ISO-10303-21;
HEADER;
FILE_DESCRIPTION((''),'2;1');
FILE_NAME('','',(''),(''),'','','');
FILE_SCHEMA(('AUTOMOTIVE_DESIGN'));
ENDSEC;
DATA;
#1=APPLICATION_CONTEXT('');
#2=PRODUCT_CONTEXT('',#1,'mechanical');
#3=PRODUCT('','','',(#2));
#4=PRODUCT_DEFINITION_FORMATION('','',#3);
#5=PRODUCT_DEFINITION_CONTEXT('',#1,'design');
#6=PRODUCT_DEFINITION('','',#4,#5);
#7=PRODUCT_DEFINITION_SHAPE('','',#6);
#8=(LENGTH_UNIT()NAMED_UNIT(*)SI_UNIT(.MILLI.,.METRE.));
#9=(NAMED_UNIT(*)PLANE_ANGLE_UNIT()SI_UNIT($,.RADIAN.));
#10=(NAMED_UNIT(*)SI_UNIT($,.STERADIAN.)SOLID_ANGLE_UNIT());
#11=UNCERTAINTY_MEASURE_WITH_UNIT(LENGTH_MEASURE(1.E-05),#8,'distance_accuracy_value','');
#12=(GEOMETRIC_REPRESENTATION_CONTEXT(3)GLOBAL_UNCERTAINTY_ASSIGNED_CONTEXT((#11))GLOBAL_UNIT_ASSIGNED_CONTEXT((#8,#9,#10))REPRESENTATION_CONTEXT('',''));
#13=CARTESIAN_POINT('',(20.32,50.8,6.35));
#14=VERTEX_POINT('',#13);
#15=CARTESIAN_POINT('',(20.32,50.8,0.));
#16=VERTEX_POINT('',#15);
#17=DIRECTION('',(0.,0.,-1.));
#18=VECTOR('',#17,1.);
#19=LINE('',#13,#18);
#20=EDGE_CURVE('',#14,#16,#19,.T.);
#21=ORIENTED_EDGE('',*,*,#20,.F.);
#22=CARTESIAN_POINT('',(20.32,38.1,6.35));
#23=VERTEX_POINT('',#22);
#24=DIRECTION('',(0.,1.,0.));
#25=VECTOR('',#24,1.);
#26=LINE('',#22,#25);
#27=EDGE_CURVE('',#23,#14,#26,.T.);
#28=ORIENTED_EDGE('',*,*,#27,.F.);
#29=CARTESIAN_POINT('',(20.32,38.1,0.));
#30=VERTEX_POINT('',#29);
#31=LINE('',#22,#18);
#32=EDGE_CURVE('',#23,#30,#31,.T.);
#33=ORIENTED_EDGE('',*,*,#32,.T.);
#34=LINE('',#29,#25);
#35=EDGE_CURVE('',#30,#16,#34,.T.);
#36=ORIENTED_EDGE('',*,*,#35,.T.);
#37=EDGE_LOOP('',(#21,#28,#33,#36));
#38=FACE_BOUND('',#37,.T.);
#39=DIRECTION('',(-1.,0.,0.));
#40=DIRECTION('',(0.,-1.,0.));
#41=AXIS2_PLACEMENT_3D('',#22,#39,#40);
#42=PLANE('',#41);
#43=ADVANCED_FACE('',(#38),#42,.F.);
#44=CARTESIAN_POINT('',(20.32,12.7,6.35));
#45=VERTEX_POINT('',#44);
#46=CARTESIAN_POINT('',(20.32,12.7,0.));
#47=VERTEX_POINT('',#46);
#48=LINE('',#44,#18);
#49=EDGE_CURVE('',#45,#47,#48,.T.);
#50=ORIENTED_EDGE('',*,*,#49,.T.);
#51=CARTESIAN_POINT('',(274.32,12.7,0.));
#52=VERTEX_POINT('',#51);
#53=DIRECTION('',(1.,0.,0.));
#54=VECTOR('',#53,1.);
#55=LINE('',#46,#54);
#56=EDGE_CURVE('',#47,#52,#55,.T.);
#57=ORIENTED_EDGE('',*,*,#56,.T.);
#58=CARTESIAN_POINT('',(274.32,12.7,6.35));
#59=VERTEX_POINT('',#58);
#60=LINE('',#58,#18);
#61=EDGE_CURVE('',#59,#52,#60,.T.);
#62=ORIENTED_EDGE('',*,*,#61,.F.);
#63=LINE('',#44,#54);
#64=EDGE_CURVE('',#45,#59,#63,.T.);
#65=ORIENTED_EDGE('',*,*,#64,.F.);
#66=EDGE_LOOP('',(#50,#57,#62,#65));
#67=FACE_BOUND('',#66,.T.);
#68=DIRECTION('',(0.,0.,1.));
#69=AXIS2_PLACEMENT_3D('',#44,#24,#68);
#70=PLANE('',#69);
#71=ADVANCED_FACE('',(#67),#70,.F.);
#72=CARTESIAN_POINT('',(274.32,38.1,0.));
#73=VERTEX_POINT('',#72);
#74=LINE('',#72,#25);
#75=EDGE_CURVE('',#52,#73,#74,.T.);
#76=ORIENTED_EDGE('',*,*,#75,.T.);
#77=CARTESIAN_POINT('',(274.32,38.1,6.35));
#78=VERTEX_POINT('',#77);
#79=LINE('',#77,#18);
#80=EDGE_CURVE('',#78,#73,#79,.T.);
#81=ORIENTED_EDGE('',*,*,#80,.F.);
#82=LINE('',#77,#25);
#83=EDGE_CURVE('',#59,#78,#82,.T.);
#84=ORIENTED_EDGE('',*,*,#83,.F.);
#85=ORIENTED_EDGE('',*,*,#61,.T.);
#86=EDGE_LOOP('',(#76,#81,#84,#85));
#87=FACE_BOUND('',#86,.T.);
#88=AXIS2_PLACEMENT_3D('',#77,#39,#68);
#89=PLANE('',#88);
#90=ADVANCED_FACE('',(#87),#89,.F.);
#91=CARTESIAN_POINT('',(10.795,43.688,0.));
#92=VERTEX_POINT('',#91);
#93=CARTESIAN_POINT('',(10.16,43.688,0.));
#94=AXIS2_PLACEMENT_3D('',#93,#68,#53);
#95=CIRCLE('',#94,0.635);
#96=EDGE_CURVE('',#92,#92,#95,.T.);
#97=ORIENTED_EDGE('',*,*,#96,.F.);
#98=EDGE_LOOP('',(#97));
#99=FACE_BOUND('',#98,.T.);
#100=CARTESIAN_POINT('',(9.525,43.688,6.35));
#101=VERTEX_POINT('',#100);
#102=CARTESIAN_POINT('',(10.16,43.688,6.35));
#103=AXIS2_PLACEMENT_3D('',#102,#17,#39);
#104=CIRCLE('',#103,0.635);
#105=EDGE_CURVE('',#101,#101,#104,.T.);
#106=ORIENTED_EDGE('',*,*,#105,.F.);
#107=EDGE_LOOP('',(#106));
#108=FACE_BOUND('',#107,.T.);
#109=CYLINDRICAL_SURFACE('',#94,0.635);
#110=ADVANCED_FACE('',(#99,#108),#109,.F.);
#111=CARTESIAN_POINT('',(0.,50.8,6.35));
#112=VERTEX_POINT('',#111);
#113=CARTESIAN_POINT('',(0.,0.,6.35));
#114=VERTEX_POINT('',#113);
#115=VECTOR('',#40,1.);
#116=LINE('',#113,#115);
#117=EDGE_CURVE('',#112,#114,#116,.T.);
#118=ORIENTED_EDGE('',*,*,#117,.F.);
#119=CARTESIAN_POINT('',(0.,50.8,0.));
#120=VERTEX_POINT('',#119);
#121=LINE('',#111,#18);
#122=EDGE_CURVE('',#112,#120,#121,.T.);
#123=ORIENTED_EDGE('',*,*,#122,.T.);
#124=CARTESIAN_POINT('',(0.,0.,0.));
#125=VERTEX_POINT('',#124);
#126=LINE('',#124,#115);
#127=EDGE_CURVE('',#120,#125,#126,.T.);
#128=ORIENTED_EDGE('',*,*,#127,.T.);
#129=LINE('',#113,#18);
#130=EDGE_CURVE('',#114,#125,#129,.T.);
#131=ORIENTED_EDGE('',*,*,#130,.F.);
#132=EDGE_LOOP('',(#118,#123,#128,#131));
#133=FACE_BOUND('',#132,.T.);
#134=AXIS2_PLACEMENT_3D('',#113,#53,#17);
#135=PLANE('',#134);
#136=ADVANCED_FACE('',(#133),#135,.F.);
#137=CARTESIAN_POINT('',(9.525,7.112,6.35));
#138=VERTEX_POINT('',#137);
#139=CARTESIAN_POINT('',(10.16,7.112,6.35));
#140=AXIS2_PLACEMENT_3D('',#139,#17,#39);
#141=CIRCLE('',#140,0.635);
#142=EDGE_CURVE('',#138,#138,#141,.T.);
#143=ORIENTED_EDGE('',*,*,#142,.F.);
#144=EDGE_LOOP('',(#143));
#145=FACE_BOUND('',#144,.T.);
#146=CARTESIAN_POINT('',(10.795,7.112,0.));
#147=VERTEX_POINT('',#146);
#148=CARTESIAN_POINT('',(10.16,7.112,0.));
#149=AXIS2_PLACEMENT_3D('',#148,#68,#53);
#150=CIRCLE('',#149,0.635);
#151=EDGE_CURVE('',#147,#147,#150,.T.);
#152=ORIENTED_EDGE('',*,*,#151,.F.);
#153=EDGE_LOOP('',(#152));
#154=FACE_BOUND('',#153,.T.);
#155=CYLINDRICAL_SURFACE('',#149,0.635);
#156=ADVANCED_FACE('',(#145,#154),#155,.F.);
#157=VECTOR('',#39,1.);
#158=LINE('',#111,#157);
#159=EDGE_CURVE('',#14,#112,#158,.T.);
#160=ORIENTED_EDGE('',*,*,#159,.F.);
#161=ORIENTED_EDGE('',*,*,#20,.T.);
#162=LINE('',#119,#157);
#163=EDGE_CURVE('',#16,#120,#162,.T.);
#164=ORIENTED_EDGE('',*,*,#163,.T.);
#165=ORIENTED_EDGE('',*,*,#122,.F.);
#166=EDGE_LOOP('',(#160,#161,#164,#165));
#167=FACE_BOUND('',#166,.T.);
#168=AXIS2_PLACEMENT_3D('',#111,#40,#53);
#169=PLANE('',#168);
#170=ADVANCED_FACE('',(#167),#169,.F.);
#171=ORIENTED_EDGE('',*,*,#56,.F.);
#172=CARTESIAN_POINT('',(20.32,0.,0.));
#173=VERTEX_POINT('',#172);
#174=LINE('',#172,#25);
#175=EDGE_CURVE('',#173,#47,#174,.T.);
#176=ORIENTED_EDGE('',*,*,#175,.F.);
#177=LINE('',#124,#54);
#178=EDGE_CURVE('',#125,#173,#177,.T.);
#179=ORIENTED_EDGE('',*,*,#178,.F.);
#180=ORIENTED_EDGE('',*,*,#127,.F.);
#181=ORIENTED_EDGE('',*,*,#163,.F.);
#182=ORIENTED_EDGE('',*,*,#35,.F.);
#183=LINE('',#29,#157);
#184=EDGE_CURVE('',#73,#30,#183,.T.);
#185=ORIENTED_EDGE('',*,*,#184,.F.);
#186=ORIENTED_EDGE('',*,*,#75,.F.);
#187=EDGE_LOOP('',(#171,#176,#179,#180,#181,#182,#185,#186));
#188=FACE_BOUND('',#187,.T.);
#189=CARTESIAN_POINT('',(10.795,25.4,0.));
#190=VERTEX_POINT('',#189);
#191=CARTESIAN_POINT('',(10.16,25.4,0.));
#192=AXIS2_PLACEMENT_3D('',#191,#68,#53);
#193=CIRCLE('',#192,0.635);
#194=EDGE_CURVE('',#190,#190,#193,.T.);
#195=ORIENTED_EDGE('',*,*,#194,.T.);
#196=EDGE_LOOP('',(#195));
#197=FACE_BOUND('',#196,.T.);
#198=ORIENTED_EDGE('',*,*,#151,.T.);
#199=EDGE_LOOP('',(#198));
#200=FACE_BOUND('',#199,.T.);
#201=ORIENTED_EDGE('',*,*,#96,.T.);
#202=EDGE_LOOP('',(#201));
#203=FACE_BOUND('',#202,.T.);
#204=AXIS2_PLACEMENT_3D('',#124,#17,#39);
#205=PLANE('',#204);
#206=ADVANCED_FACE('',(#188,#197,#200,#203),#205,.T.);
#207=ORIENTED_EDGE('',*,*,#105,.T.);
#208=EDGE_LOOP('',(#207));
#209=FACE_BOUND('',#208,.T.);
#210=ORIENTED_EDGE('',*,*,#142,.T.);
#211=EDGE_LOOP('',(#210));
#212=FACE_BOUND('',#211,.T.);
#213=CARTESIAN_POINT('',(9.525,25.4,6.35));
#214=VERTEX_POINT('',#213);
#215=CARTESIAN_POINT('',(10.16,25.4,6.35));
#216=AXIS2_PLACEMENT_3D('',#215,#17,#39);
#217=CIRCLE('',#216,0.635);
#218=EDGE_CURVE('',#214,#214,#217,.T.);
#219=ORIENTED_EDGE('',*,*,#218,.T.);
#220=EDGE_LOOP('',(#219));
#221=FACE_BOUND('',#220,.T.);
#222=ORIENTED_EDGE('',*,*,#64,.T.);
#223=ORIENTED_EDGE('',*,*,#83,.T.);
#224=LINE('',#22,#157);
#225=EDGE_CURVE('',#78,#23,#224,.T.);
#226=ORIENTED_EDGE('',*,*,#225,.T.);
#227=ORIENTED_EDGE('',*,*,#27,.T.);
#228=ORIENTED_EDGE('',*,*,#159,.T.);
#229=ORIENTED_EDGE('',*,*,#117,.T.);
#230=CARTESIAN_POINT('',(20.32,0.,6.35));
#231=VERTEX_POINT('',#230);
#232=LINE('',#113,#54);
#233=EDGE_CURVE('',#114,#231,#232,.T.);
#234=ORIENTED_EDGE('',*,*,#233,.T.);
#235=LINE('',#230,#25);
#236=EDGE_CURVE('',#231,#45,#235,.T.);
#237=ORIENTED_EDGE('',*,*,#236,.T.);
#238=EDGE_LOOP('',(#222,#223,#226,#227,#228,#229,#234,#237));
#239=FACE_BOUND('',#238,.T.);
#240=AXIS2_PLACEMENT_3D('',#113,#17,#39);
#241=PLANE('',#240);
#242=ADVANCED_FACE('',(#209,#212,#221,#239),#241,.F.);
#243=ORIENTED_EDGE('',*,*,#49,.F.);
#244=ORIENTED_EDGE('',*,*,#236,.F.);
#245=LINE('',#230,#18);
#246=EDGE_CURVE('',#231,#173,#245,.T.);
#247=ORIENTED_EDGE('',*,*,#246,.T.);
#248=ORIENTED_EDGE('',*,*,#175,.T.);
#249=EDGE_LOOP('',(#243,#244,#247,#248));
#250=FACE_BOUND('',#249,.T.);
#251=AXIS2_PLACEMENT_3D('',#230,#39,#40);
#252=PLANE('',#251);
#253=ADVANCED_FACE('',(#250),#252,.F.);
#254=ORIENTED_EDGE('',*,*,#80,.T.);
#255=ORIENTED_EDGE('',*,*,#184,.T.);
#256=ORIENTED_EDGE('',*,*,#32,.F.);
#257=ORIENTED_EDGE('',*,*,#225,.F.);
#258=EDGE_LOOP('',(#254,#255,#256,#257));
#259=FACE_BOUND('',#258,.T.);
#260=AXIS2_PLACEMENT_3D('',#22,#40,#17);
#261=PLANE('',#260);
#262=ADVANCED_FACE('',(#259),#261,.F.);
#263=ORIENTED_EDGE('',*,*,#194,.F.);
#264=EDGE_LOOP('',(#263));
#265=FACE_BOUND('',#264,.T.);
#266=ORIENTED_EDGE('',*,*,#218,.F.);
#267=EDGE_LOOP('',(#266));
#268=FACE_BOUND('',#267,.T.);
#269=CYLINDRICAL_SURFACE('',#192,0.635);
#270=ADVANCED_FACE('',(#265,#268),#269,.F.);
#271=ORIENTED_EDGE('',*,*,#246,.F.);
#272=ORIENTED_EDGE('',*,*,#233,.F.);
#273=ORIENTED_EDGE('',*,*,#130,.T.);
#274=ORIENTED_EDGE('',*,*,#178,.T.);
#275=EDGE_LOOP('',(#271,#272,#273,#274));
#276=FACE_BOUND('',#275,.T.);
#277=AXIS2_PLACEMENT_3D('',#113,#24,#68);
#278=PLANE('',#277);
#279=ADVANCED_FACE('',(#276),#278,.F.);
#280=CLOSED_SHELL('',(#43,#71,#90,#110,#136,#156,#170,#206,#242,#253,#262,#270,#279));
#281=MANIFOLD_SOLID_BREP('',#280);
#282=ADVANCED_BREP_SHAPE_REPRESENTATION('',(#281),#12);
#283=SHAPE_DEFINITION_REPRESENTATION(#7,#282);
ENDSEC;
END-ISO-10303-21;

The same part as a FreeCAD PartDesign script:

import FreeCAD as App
import Part
import Sketcher
from FreeCAD import Vector
Q = App.Units.Quantity


def add_polygon(sketch, points):
    """Adds a closed chain of lines whose ends are joined by coincident constraints."""
    first, n = sketch.GeometryCount, len(points)
    for a, b in zip(points, points[1:] + points[:1]):
        sketch.addGeometry(Part.LineSegment(App.Vector(*a, 0), App.Vector(*b, 0)), False)
    for i in range(n):
        sketch.addConstraint(Sketcher.Constraint("Coincident", first + i, 2, first + (i + 1) % n, 1))

doc = App.newDocument("Part")
body = doc.addObject("PartDesign::Body", "Body")

# Sketch on XY plane
sketch1 = body.newObject("Sketcher::SketchObject", "Sketch")
sketch1.AttachmentSupport = (doc.getObject("XY_Plane"), [""])
sketch1.MapMode = "FlatFace"
add_polygon(sketch1, [(0, 0), (20.32, 0), (20.32, 12.7), (274.32, 12.7), (274.32, 38.1), (20.32, 38.1), (20.32, 50.8), (0, 50.8)])  # lines 0-7
sketch1.addConstraint([
    Sketcher.Constraint("Horizontal", 0),
    Sketcher.Constraint("Vertical", 1),
    Sketcher.Constraint("Horizontal", 2),
    Sketcher.Constraint("Vertical", 3),
    Sketcher.Constraint("Horizontal", 4),
    Sketcher.Constraint("Vertical", 5),
    Sketcher.Constraint("Horizontal", 6),
    Sketcher.Constraint("Vertical", 7),
    Sketcher.Constraint("Coincident", 7, 2, -1, 1),
    Sketcher.Constraint("Vertical", 1, 2, 4, 2),
    Sketcher.Constraint("Equal", 1, 5),
    Sketcher.Constraint("DistanceX", 2, 1, 2, 2, Q("10 in")),
    Sketcher.Constraint("DistanceY", 3, 1, 3, 2, Q("1 in")),
    Sketcher.Constraint("DistanceY", 7, 2, 7, 1, Q("2 in")),
    Sketcher.Constraint("DistanceX", 0, 1, 0, 2, Q("0.8 in")),
])
pad1 = body.newObject("PartDesign::Pad", "Pad")
pad1.Profile = sketch1
pad1.Length = Q("0.25 in")

# Sketch on XY plane
sketch2 = body.newObject("Sketcher::SketchObject", "Sketch001")
sketch2.AttachmentSupport = (doc.getObject("XY_Plane"), [""])
sketch2.MapMode = "FlatFace"
sketch2.AttachmentOffset = App.Placement(Vector(0, 0, 0.25 * 25.4), App.Rotation())
sketch2.addGeometry([
    Part.Circle(Vector(10.16, 43.688, 0), Vector(0, 0, 1), 0.635),
    Part.Circle(Vector(10.16, 25.4, 0), Vector(0, 0, 1), 0.635),
    Part.Circle(Vector(10.16, 7.112, 0), Vector(0, 0, 1), 0.635),
], False)
sketch2.addConstraint([
    Sketcher.Constraint("Equal", 0, 1),
    Sketcher.Constraint("Equal", 1, 2),
    Sketcher.Constraint("Vertical", 0, 3, 1, 3),
    Sketcher.Constraint("Vertical", 1, 3, 2, 3),
    Sketcher.Constraint("Diameter", 0, Q("0.05 in")),
    Sketcher.Constraint("DistanceY", -1, 1, 1, 3, Q("1 in")),
    Sketcher.Constraint("DistanceX", -1, 1, 0, 3, Q("0.4 in")),
    Sketcher.Constraint("DistanceY", -1, 1, 0, 3, Q("1.72 in")),
    Sketcher.Constraint("DistanceY", -1, 1, 2, 3, Q("0.28 in")),
])
pocket1 = body.newObject("PartDesign::Pocket", "Pocket")
pocket1.Profile = sketch2
pocket1.Type = "ThroughAll"
pocket1.Midplane = True

doc.recompute()
